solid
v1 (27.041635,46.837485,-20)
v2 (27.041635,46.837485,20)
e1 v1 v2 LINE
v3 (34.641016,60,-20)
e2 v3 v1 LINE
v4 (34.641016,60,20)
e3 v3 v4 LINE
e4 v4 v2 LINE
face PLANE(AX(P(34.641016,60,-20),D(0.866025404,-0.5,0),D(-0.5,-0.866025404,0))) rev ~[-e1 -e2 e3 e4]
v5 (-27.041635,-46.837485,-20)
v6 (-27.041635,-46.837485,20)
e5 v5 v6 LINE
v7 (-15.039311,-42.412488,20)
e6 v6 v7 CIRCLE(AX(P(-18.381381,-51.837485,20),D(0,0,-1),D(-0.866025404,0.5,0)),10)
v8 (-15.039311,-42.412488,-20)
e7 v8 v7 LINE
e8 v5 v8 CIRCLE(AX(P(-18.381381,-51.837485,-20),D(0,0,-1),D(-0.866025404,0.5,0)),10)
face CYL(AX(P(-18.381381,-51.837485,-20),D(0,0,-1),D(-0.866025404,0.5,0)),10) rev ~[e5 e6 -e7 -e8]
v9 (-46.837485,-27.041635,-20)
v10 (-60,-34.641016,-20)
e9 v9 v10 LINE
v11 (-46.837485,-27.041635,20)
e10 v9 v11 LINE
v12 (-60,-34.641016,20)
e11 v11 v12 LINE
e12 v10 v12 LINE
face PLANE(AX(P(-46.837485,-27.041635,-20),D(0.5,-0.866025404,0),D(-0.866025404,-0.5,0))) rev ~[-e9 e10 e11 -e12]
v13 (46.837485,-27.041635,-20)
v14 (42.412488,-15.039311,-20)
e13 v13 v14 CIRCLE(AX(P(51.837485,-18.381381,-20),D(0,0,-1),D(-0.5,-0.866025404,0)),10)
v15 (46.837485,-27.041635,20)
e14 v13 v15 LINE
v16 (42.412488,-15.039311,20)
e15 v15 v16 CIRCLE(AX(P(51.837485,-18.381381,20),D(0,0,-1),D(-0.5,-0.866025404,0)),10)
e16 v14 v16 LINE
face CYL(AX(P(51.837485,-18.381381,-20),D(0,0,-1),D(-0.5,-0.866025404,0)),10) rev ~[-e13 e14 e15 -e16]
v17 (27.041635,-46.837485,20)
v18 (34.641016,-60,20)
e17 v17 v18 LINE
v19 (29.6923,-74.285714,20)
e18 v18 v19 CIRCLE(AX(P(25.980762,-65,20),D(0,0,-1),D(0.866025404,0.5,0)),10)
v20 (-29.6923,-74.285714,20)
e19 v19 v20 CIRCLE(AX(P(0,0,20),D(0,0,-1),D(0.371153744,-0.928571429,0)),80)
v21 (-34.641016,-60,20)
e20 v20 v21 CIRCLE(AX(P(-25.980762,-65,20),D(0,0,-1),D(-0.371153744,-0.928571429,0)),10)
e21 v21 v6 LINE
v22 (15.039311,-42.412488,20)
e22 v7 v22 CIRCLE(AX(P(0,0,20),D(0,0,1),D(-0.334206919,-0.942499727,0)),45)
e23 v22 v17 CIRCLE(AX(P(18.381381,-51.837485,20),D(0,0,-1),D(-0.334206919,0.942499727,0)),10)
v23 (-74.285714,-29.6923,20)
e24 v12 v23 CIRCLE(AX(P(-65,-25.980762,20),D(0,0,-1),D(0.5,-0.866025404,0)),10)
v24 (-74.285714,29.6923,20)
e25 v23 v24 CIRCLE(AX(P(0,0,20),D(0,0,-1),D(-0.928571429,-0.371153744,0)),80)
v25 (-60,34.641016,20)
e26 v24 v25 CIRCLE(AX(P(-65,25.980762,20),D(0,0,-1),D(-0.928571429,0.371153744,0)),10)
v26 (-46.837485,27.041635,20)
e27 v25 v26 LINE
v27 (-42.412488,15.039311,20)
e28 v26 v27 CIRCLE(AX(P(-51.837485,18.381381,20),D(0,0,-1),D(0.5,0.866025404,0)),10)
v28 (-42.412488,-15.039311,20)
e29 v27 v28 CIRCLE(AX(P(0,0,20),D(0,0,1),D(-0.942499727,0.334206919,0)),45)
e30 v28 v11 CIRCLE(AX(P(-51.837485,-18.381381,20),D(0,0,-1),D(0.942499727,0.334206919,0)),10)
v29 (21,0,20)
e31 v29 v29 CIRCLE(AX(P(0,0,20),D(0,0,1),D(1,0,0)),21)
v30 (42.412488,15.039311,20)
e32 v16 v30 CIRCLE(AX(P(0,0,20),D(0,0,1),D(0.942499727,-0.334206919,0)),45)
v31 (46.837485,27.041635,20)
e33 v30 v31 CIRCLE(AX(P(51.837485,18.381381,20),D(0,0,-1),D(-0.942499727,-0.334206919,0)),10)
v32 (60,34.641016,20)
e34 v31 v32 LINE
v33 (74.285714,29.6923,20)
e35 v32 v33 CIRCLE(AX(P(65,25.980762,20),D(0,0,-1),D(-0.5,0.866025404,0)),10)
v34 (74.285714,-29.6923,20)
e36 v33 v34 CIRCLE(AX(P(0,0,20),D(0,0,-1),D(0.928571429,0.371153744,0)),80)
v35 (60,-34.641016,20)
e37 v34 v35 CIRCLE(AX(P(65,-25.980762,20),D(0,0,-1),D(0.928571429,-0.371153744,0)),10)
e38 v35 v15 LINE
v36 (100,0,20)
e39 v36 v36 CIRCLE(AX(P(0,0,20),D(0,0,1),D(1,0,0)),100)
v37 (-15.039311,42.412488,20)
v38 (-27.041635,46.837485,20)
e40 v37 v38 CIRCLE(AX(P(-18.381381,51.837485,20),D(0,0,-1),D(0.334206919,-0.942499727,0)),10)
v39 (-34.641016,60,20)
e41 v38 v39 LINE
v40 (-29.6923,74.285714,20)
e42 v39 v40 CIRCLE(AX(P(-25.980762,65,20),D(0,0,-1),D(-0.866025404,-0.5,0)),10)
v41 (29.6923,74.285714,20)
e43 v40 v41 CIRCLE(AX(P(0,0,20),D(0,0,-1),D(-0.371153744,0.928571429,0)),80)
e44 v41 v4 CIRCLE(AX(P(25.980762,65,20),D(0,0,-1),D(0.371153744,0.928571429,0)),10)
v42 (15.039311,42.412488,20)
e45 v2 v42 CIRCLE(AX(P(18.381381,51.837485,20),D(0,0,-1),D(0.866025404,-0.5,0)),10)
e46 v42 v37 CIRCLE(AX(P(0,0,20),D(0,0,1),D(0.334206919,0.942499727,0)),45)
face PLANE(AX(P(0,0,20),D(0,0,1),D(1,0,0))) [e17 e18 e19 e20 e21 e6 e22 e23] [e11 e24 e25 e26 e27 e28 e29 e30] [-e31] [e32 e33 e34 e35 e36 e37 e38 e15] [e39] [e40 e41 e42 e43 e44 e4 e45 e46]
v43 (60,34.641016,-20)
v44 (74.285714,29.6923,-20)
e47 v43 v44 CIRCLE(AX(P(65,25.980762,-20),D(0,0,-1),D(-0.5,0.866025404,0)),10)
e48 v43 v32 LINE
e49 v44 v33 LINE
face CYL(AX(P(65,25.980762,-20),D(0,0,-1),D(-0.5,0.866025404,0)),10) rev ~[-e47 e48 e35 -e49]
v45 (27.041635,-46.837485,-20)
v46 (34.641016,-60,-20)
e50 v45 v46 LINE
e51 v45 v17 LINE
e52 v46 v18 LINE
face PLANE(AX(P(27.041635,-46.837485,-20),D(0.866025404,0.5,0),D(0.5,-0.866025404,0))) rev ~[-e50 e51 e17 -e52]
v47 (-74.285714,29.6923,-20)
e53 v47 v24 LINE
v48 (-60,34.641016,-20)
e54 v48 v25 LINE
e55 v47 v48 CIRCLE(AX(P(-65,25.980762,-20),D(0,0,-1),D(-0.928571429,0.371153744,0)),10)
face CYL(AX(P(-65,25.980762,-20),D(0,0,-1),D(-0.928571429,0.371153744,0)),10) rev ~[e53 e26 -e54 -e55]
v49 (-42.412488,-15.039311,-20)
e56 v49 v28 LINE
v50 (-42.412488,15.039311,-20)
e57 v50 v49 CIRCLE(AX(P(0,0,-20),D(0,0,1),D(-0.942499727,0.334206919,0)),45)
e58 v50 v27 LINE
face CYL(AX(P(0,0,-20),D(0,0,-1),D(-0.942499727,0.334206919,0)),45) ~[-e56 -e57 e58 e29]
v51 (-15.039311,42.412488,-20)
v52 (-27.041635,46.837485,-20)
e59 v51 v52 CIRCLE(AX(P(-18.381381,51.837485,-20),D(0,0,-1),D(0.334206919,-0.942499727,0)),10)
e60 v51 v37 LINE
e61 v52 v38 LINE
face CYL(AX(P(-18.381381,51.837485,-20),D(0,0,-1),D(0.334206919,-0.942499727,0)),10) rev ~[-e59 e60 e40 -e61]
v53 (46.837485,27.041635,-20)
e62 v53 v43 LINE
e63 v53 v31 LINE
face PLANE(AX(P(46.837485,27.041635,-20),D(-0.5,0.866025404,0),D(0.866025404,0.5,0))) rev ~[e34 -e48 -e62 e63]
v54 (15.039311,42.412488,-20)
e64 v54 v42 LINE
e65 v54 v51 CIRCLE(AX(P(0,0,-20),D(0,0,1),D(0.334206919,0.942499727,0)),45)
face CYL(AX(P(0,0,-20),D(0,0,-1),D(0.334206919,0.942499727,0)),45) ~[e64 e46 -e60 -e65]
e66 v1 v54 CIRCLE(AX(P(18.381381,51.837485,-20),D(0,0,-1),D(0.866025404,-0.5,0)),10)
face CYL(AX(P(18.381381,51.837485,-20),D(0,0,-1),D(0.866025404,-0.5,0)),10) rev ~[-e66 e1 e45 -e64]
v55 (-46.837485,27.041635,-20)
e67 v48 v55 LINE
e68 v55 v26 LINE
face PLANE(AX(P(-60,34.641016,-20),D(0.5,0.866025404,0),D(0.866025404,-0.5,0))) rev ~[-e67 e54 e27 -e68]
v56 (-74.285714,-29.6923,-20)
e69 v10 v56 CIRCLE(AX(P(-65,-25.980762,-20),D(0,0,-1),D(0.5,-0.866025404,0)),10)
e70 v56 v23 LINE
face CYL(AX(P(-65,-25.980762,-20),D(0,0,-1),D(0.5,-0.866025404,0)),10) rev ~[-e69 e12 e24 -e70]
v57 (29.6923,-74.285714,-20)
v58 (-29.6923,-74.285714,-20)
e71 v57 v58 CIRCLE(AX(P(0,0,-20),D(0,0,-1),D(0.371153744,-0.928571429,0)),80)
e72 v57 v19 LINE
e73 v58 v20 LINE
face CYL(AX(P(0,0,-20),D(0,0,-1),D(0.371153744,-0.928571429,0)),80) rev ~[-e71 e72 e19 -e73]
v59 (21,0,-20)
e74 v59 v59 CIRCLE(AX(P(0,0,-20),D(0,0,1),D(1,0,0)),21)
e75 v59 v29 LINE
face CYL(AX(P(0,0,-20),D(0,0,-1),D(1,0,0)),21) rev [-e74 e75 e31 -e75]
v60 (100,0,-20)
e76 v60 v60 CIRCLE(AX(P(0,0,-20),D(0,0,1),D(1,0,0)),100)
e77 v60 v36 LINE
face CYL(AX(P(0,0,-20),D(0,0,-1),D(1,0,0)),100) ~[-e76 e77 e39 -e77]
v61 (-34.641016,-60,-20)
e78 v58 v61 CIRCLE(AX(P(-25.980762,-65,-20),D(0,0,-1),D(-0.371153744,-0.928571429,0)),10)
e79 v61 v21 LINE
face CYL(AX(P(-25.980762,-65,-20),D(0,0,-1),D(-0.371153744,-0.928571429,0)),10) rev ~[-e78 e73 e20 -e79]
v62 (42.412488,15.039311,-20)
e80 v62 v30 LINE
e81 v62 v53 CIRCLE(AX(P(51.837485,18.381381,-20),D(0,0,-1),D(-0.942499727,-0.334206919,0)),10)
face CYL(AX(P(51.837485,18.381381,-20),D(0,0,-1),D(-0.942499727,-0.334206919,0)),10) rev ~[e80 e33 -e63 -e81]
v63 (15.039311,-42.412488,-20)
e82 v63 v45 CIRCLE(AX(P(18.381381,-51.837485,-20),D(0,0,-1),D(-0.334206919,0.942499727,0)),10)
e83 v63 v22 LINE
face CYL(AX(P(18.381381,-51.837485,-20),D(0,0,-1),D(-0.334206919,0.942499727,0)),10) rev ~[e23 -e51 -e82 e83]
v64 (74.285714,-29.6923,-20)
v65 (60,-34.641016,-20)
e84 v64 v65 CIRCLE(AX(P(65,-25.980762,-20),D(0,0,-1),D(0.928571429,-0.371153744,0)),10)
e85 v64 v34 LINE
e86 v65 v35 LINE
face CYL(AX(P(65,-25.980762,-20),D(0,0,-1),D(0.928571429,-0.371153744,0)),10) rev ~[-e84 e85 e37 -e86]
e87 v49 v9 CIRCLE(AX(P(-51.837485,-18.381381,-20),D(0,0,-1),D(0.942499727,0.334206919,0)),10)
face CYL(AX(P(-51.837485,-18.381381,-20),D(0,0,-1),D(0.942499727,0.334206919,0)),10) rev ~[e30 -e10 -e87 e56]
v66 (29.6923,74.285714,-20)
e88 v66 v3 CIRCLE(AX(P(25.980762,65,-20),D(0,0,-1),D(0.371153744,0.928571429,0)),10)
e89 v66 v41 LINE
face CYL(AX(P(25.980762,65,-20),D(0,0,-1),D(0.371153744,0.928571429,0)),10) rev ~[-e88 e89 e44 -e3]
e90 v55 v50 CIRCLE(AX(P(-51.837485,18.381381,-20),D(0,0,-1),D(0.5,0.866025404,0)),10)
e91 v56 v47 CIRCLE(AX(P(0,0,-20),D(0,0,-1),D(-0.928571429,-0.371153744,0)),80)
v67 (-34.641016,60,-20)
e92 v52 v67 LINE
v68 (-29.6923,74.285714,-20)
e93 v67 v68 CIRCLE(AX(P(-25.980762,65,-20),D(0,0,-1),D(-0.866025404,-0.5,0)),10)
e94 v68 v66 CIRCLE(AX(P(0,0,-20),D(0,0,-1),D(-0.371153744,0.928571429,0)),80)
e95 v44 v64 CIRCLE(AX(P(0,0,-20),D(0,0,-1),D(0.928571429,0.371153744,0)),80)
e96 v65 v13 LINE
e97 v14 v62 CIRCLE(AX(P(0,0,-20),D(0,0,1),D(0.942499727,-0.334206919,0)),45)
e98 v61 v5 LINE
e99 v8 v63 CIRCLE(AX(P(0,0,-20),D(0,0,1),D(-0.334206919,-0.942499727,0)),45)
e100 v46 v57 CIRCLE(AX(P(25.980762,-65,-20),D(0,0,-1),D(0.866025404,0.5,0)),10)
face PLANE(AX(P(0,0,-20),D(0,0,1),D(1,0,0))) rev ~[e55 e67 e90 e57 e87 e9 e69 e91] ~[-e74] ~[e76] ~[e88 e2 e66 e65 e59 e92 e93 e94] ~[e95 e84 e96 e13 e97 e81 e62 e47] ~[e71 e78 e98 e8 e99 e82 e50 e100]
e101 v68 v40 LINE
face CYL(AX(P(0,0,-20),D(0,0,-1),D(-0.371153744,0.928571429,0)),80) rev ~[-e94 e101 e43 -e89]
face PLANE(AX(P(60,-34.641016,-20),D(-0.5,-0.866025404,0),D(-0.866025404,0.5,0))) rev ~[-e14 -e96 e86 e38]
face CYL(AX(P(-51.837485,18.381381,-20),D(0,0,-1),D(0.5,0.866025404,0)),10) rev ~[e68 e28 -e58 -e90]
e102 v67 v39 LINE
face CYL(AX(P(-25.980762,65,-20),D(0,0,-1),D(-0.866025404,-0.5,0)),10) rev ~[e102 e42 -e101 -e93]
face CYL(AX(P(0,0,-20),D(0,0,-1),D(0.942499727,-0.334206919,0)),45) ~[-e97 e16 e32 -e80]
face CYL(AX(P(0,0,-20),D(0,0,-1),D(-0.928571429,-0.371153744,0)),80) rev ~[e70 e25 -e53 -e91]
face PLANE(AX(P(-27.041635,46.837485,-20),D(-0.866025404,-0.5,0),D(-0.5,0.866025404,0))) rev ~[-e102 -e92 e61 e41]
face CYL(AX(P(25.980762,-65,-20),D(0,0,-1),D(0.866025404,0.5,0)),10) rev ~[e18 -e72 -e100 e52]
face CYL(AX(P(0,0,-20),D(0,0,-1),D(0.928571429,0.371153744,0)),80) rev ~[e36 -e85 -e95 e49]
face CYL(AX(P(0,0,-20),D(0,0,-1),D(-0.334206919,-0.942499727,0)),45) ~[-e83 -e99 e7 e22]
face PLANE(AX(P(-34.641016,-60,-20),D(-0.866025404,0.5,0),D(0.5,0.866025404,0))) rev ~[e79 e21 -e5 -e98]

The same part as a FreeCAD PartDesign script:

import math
import FreeCAD as App
import Part
import Sketcher
from FreeCAD import Vector
Q = App.Units.Quantity

doc = App.newDocument("Part")
params = doc.addObject("Spreadsheet::Sheet", "Params")
for row, (alias, value) in enumerate([
    ("sketch1_diameter", "60 mm"),
    ("sketch1_diameter2", "42 mm"),
    ("pad1_length", "20 mm"),
    ("pad1_length2", "20 mm"),
    ("sketch2_diameter", "200 mm"),
    ("sketch2_diameter2", "42 mm"),
    ("pad2_length", "20 mm"),
    ("pad2_length2", "20 mm"),
    ("sketch3_radius", "10 mm"),
    ("sketch3_radius2", "45 mm"),
    ("sketch3_radius3", "80 mm"),
], start=1):
    params.set(f"A{row}", alias)
    params.set(f"B{row}", "=" + value)
    params.setAlias(f"B{row}", alias)

body = doc.addObject("PartDesign::Body", "Body")

# Sketch on XY plane
sketch1 = body.newObject("Sketcher::SketchObject", "Sketch")
sketch1.AttachmentSupport = (doc.getObject("XY_Plane"), [""])
sketch1.MapMode = "FlatFace"
sketch1.addGeometry([
    Part.Circle(Vector(0, 0, 0), Vector(0, 0, 1), 30),
    Part.Circle(Vector(0, 0, 0), Vector(0, 0, 1), 21),
], False)
sketch1.addConstraint([
    Sketcher.Constraint("Coincident", 0, 3, -1, 1),
    Sketcher.Constraint("Coincident", 1, 3, -1, 1),
    Sketcher.Constraint("Diameter", 0, Q("60 mm")),
    Sketcher.Constraint("Diameter", 1, Q("42 mm")),
])
sketch1.setExpression("Constraints[2]", "Params.sketch1_diameter")
sketch1.setExpression("Constraints[3]", "Params.sketch1_diameter2")
pad1 = body.newObject("PartDesign::Pad", "Pad")
pad1.Profile = sketch1
pad1.Type = "TwoLengths"
pad1.setExpression("Length", "Params.pad1_length")
pad1.setExpression("Length2", "Params.pad1_length2")

# Sketch on XY plane
sketch2 = body.newObject("Sketcher::SketchObject", "Sketch001")
sketch2.AttachmentSupport = (doc.getObject("XY_Plane"), [""])
sketch2.MapMode = "FlatFace"
sketch2.addGeometry([
    Part.Circle(Vector(0, 0, 0), Vector(0, 0, 1), 100),
    Part.Circle(Vector(0, 0, 0), Vector(0, 0, 1), 21),
], False)
sketch2.addConstraint([
    Sketcher.Constraint("Coincident", 0, 3, -1, 1),
    Sketcher.Constraint("Coincident", 1, 3, -1, 1),
    Sketcher.Constraint("Diameter", 0, Q("200 mm")),
    Sketcher.Constraint("Diameter", 1, Q("42 mm")),
])
sketch2.setExpression("Constraints[2]", "Params.sketch2_diameter")
sketch2.setExpression("Constraints[3]", "Params.sketch2_diameter2")
pad2 = body.newObject("PartDesign::Pad", "Pad001")
pad2.Profile = sketch2
pad2.Type = "TwoLengths"
pad2.setExpression("Length", "Params.pad2_length")
pad2.setExpression("Length2", "Params.pad2_length2")

# Sketch on XY plane
sketch3 = body.newObject("Sketcher::SketchObject", "Sketch002")
sketch3.AttachmentSupport = (doc.getObject("XY_Plane"), [""])
sketch3.MapMode = "FlatFace"
sketch3.addGeometry([
    Part.LineSegment(Vector(-35, 60, 0), Vector(-27, 47, 0)),  # 0
    Part.ArcOfCircle(Part.Circle(Vector(-18, 52, 0), Vector(0, 0, 1), 10), math.radians(-150), math.radians(-70)),  # 1
    Part.ArcOfCircle(Part.Circle(Vector(0, 0, 0), Vector(0, 0, 1), 45), math.radians(70), math.radians(110)),  # 2
    Part.ArcOfCircle(Part.Circle(Vector(18, 52, 0), Vector(0, 0, 1), 10), math.radians(-110), math.radians(-30)),  # 3
    Part.LineSegment(Vector(27, 47, 0), Vector(35, 60, 0)),  # 4
    Part.ArcOfCircle(Part.Circle(Vector(26, 65, 0), Vector(0, 0, 1), 10), math.radians(-30), math.radians(68)),  # 5
    Part.ArcOfCircle(Part.Circle(Vector(0, 0, 0), Vector(0, 0, 1), 80), math.radians(68), math.radians(112)),  # 6
    Part.ArcOfCircle(Part.Circle(Vector(-26, 65, 0), Vector(0, 0, 1), 10), math.radians(112), math.radians(210)),  # 7
    Part.LineSegment(Vector(60, 35, 0), Vector(47, 27, 0)),  # 8
    Part.ArcOfCircle(Part.Circle(Vector(52, 18, 0), Vector(0, 0, 1), 10), math.radians(120), math.radians(200)),  # 9
    Part.ArcOfCircle(Part.Circle(Vector(0, 0, 0), Vector(0, 0, 1), 45), math.radians(-20), math.radians(20)),  # 10
    Part.ArcOfCircle(Part.Circle(Vector(52, -18, 0), Vector(0, 0, 1), 10), math.radians(160), math.radians(240)),  # 11
    Part.LineSegment(Vector(47, -27, 0), Vector(60, -35, 0)),  # 12
    Part.ArcOfCircle(Part.Circle(Vector(65, -26, 0), Vector(0, 0, 1), 10), math.radians(-120), math.radians(-22)),  # 13
    Part.ArcOfCircle(Part.Circle(Vector(0, 0, 0), Vector(0, 0, 1), 80), math.radians(-22), math.radians(22)),  # 14
    Part.ArcOfCircle(Part.Circle(Vector(65, 26, 0), Vector(0, 0, 1), 10), math.radians(22), math.radians(120)),  # 15
    Part.LineSegment(Vector(35, -60, 0), Vector(27, -47, 0)),  # 16
    Part.ArcOfCircle(Part.Circle(Vector(18, -52, 0), Vector(0, 0, 1), 10), math.radians(30), math.radians(110)),  # 17
    Part.ArcOfCircle(Part.Circle(Vector(0, 0, 0), Vector(0, 0, 1), 45), math.radians(-110), math.radians(-70)),  # 18
    Part.ArcOfCircle(Part.Circle(Vector(-18, -52, 0), Vector(0, 0, 1), 10), math.radians(70), math.radians(150)),  # 19
    Part.LineSegment(Vector(-27, -47, 0), Vector(-35, -60, 0)),  # 20
    Part.ArcOfCircle(Part.Circle(Vector(-26, -65, 0), Vector(0, 0, 1), 10), math.radians(150), math.radians(248)),  # 21
    Part.ArcOfCircle(Part.Circle(Vector(0, 0, 0), Vector(0, 0, 1), 80), math.radians(-112), math.radians(-68)),  # 22
    Part.ArcOfCircle(Part.Circle(Vector(26, -65, 0), Vector(0, 0, 1), 10), math.radians(-68), math.radians(30)),  # 23
    Part.LineSegment(Vector(-60, -35, 0), Vector(-47, -27, 0)),  # 24
    Part.ArcOfCircle(Part.Circle(Vector(-52, -18, 0), Vector(0, 0, 1), 10), math.radians(-60), math.radians(20)),  # 25
    Part.ArcOfCircle(Part.Circle(Vector(0, 0, 0), Vector(0, 0, 1), 45), math.radians(160), math.radians(200)),  # 26
    Part.ArcOfCircle(Part.Circle(Vector(-52, 18, 0), Vector(0, 0, 1), 10), math.radians(-20), math.radians(60)),  # 27
    Part.LineSegment(Vector(-47, 27, 0), Vector(-60, 35, 0)),  # 28
    Part.ArcOfCircle(Part.Circle(Vector(-65, 26, 0), Vector(0, 0, 1), 10), math.radians(60), math.radians(158)),  # 29
    Part.ArcOfCircle(Part.Circle(Vector(0, 0, 0), Vector(0, 0, 1), 80), math.radians(158), math.radians(202)),  # 30
    Part.ArcOfCircle(Part.Circle(Vector(-65, -26, 0), Vector(0, 0, 1), 10), math.radians(-158), math.radians(-60)),  # 31
], False)
sketch3.addConstraint([
    Sketcher.Constraint("Tangent", 0, 2, 1, 1),
    Sketcher.Constraint("Tangent", 1, 2, 2, 2),
    Sketcher.Constraint("Tangent", 2, 1, 3, 1),
    Sketcher.Constraint("Tangent", 3, 2, 4, 1),
    Sketcher.Constraint("Tangent", 4, 2, 5, 1),
    Sketcher.Constraint("Tangent", 5, 2, 6, 1),
    Sketcher.Constraint("Tangent", 6, 2, 7, 1),
    Sketcher.Constraint("Tangent", 7, 2, 0, 1),
    Sketcher.Constraint("Tangent", 8, 2, 9, 1),
    Sketcher.Constraint("Tangent", 9, 2, 10, 2),
    Sketcher.Constraint("Tangent", 10, 1, 11, 1),
    Sketcher.Constraint("Tangent", 11, 2, 12, 1),
    Sketcher.Constraint("Tangent", 12, 2, 13, 1),
    Sketcher.Constraint("Tangent", 13, 2, 14, 1),
    Sketcher.Constraint("Tangent", 14, 2, 15, 1),
    Sketcher.Constraint("Tangent", 15, 2, 8, 1),
    Sketcher.Constraint("Tangent", 16, 2, 17, 1),
    Sketcher.Constraint("Tangent", 17, 2, 18, 2),
    Sketcher.Constraint("Tangent", 18, 1, 19, 1),
    Sketcher.Constraint("Tangent", 19, 2, 20, 1),
    Sketcher.Constraint("Tangent", 20, 2, 21, 1),
    Sketcher.Constraint("Tangent", 21, 2, 22, 1),
    Sketcher.Constraint("Tangent", 22, 2, 23, 1),
    Sketcher.Constraint("Tangent", 23, 2, 16, 1),
    Sketcher.Constraint("Tangent", 24, 2, 25, 1),
    Sketcher.Constraint("Tangent", 25, 2, 26, 2),
    Sketcher.Constraint("Tangent", 26, 1, 27, 1),
    Sketcher.Constraint("Tangent", 27, 2, 28, 1),
    Sketcher.Constraint("Tangent", 28, 2, 29, 1),
    Sketcher.Constraint("Tangent", 29, 2, 30, 1),
    Sketcher.Constraint("Tangent", 30, 2, 31, 1),
    Sketcher.Constraint("Tangent", 31, 2, 24, 1),
    Sketcher.Constraint("Coincident", 2, 3, -1, 1),
    Sketcher.Constraint("Coincident", 6, 3, -1, 1),
    Sketcher.Constraint("Coincident", 10, 3, -1, 1),
    Sketcher.Constraint("Coincident", 14, 3, -1, 1),
    Sketcher.Constraint("Coincident", 18, 3, -1, 1),
    Sketcher.Constraint("Coincident", 22, 3, -1, 1),
    Sketcher.Constraint("Coincident", 26, 3, -1, 1),
    Sketcher.Constraint("Coincident", 30, 3, -1, 1),
    Sketcher.Constraint("Equal", 1, 3),
    Sketcher.Constraint("Equal", 3, 5),
    Sketcher.Constraint("Equal", 5, 7),
    Sketcher.Constraint("Equal", 7, 9),
    Sketcher.Constraint("Equal", 2, 10),
    Sketcher.Constraint("Equal", 9, 11),
    Sketcher.Constraint("Equal", 11, 13),
    Sketcher.Constraint("Equal", 6, 14),
    Sketcher.Constraint("Equal", 13, 15),
    Sketcher.Constraint("Equal", 15, 17),
    Sketcher.Constraint("Equal", 10, 18),
    Sketcher.Constraint("Equal", 17, 19),
    Sketcher.Constraint("Equal", 19, 21),
    Sketcher.Constraint("Equal", 14, 22),
    Sketcher.Constraint("Equal", 21, 23),
    Sketcher.Constraint("Equal", 23, 25),
    Sketcher.Constraint("Equal", 18, 26),
    Sketcher.Constraint("Equal", 25, 27),
    Sketcher.Constraint("Equal", 27, 29),
    Sketcher.Constraint("Equal", 22, 30),
    Sketcher.Constraint("Equal", 29, 31),
    Sketcher.Constraint("Symmetric", 0, 2, 16, 2, -1, 1),
    Sketcher.Constraint("Symmetric", 3, 2, 19, 2, -1, 1),
    Sketcher.Constraint("Symmetric", 8, 2, 24, 2, -1, 1),
    Sketcher.Constraint("Symmetric", 11, 2, 27, 2, -1, 1),
    Sketcher.Constraint("Symmetric", 0, 2, 3, 2, -2),
    Sketcher.Constraint("Symmetric", 11, 2, 24, 2, -2),
    Sketcher.Constraint("Perpendicular", 0, 8),
    Sketcher.Constraint("Equal", 4, 8),
    Sketcher.Constraint("Radius", 1, Q("10 mm")),
    Sketcher.Constraint("Radius", 2, Q("45 mm")),
    Sketcher.Constraint("Radius", 6, Q("80 mm")),
    Sketcher.Constraint("Angle", 0, Q("-60 deg")),
    Sketcher.Constraint("DistanceY", -1, 1, 5, 3, Q("65 mm")),
])
sketch3.setExpression("Constraints[69]", "Params.sketch3_radius")
sketch3.setExpression("Constraints[70]", "Params.sketch3_radius2")
sketch3.setExpression("Constraints[71]", "Params.sketch3_radius3")
pocket1 = body.newObject("PartDesign::Pocket", "Pocket")
pocket1.Profile = sketch3
pocket1.Type = "ThroughAll"
pocket1.Midplane = True

doc.recompute()
